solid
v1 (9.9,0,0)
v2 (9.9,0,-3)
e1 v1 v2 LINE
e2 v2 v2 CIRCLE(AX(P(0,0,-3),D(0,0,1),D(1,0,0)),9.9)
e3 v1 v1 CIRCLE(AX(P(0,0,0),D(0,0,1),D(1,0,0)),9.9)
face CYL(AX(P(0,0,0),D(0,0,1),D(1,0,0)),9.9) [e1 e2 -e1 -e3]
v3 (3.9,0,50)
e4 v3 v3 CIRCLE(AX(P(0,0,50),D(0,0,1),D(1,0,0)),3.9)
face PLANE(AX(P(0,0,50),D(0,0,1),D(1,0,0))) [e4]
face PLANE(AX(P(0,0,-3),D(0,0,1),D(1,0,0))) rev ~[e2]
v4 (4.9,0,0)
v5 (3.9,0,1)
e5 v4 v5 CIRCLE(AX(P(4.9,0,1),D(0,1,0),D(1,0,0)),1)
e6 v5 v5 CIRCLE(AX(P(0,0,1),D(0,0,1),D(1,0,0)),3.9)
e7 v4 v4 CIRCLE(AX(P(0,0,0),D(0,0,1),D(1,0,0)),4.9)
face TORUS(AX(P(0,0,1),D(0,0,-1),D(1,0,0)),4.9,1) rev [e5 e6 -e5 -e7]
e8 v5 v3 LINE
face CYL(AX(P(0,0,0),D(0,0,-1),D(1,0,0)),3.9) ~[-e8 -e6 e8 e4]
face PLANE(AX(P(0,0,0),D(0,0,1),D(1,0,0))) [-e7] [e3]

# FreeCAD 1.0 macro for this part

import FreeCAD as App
import Part
import Sketcher


def edges_at(feature, points):
    """Names of the edges that pass closest to the given points."""
    edges = feature.Shape.Edges
    near = lambda p: min(range(len(edges)), key=lambda i: edges[i].distToShape(Part.Vertex(*p))[0])
    return sorted({f"Edge{near(p) + 1}" for p in points})

doc = App.newDocument("Part")
body = doc.addObject("PartDesign::Body", "Body")

# Sketch on XY plane
sketch1 = doc.addObject("Sketcher::SketchObject", "Sketch")
body.addObject(sketch1)
sketch1.AttachmentSupport = (doc.XY_Plane, [""])
sketch1.MapMode = "FlatFace"
sketch1.addGeometry(Part.Circle(App.Vector(0, 0, 0), App.Vector(0, 0, 1), 3.9), False)
sketch1.addConstraint([
    Sketcher.Constraint("Coincident", 0, 3, -1, 1),
    Sketcher.Constraint("Diameter", 0, 7.8),
])
pad1 = doc.addObject("PartDesign::Pad", "Pad")
body.addObject(pad1)
pad1.Profile = sketch1
pad1.Length = 50

# Sketch on XY plane
sketch2 = doc.addObject("Sketcher::SketchObject", "Sketch001")
body.addObject(sketch2)
sketch2.AttachmentSupport = (doc.XY_Plane, [""])
sketch2.MapMode = "FlatFace"
sketch2.addGeometry(Part.Circle(App.Vector(0, 0, 0), App.Vector(0, 0, 1), 10), False)
sketch2.addConstraint([
    Sketcher.Constraint("Coincident", 0, 3, -1, 1),
    Sketcher.Constraint("Diameter", 0, 19.8),
])
pad2 = doc.addObject("PartDesign::Pad", "Pad001")
body.addObject(pad2)
pad2.Profile = sketch2
pad2.Length = 3
pad2.Reversed = True
doc.recompute()

fillet = doc.addObject("PartDesign::Fillet", "Fillet")
body.addObject(fillet)
fillet.Base = (pad2, edges_at(pad2, [(-3.9, 0, 0)]))
fillet.Radius = 1

doc.recompute()
